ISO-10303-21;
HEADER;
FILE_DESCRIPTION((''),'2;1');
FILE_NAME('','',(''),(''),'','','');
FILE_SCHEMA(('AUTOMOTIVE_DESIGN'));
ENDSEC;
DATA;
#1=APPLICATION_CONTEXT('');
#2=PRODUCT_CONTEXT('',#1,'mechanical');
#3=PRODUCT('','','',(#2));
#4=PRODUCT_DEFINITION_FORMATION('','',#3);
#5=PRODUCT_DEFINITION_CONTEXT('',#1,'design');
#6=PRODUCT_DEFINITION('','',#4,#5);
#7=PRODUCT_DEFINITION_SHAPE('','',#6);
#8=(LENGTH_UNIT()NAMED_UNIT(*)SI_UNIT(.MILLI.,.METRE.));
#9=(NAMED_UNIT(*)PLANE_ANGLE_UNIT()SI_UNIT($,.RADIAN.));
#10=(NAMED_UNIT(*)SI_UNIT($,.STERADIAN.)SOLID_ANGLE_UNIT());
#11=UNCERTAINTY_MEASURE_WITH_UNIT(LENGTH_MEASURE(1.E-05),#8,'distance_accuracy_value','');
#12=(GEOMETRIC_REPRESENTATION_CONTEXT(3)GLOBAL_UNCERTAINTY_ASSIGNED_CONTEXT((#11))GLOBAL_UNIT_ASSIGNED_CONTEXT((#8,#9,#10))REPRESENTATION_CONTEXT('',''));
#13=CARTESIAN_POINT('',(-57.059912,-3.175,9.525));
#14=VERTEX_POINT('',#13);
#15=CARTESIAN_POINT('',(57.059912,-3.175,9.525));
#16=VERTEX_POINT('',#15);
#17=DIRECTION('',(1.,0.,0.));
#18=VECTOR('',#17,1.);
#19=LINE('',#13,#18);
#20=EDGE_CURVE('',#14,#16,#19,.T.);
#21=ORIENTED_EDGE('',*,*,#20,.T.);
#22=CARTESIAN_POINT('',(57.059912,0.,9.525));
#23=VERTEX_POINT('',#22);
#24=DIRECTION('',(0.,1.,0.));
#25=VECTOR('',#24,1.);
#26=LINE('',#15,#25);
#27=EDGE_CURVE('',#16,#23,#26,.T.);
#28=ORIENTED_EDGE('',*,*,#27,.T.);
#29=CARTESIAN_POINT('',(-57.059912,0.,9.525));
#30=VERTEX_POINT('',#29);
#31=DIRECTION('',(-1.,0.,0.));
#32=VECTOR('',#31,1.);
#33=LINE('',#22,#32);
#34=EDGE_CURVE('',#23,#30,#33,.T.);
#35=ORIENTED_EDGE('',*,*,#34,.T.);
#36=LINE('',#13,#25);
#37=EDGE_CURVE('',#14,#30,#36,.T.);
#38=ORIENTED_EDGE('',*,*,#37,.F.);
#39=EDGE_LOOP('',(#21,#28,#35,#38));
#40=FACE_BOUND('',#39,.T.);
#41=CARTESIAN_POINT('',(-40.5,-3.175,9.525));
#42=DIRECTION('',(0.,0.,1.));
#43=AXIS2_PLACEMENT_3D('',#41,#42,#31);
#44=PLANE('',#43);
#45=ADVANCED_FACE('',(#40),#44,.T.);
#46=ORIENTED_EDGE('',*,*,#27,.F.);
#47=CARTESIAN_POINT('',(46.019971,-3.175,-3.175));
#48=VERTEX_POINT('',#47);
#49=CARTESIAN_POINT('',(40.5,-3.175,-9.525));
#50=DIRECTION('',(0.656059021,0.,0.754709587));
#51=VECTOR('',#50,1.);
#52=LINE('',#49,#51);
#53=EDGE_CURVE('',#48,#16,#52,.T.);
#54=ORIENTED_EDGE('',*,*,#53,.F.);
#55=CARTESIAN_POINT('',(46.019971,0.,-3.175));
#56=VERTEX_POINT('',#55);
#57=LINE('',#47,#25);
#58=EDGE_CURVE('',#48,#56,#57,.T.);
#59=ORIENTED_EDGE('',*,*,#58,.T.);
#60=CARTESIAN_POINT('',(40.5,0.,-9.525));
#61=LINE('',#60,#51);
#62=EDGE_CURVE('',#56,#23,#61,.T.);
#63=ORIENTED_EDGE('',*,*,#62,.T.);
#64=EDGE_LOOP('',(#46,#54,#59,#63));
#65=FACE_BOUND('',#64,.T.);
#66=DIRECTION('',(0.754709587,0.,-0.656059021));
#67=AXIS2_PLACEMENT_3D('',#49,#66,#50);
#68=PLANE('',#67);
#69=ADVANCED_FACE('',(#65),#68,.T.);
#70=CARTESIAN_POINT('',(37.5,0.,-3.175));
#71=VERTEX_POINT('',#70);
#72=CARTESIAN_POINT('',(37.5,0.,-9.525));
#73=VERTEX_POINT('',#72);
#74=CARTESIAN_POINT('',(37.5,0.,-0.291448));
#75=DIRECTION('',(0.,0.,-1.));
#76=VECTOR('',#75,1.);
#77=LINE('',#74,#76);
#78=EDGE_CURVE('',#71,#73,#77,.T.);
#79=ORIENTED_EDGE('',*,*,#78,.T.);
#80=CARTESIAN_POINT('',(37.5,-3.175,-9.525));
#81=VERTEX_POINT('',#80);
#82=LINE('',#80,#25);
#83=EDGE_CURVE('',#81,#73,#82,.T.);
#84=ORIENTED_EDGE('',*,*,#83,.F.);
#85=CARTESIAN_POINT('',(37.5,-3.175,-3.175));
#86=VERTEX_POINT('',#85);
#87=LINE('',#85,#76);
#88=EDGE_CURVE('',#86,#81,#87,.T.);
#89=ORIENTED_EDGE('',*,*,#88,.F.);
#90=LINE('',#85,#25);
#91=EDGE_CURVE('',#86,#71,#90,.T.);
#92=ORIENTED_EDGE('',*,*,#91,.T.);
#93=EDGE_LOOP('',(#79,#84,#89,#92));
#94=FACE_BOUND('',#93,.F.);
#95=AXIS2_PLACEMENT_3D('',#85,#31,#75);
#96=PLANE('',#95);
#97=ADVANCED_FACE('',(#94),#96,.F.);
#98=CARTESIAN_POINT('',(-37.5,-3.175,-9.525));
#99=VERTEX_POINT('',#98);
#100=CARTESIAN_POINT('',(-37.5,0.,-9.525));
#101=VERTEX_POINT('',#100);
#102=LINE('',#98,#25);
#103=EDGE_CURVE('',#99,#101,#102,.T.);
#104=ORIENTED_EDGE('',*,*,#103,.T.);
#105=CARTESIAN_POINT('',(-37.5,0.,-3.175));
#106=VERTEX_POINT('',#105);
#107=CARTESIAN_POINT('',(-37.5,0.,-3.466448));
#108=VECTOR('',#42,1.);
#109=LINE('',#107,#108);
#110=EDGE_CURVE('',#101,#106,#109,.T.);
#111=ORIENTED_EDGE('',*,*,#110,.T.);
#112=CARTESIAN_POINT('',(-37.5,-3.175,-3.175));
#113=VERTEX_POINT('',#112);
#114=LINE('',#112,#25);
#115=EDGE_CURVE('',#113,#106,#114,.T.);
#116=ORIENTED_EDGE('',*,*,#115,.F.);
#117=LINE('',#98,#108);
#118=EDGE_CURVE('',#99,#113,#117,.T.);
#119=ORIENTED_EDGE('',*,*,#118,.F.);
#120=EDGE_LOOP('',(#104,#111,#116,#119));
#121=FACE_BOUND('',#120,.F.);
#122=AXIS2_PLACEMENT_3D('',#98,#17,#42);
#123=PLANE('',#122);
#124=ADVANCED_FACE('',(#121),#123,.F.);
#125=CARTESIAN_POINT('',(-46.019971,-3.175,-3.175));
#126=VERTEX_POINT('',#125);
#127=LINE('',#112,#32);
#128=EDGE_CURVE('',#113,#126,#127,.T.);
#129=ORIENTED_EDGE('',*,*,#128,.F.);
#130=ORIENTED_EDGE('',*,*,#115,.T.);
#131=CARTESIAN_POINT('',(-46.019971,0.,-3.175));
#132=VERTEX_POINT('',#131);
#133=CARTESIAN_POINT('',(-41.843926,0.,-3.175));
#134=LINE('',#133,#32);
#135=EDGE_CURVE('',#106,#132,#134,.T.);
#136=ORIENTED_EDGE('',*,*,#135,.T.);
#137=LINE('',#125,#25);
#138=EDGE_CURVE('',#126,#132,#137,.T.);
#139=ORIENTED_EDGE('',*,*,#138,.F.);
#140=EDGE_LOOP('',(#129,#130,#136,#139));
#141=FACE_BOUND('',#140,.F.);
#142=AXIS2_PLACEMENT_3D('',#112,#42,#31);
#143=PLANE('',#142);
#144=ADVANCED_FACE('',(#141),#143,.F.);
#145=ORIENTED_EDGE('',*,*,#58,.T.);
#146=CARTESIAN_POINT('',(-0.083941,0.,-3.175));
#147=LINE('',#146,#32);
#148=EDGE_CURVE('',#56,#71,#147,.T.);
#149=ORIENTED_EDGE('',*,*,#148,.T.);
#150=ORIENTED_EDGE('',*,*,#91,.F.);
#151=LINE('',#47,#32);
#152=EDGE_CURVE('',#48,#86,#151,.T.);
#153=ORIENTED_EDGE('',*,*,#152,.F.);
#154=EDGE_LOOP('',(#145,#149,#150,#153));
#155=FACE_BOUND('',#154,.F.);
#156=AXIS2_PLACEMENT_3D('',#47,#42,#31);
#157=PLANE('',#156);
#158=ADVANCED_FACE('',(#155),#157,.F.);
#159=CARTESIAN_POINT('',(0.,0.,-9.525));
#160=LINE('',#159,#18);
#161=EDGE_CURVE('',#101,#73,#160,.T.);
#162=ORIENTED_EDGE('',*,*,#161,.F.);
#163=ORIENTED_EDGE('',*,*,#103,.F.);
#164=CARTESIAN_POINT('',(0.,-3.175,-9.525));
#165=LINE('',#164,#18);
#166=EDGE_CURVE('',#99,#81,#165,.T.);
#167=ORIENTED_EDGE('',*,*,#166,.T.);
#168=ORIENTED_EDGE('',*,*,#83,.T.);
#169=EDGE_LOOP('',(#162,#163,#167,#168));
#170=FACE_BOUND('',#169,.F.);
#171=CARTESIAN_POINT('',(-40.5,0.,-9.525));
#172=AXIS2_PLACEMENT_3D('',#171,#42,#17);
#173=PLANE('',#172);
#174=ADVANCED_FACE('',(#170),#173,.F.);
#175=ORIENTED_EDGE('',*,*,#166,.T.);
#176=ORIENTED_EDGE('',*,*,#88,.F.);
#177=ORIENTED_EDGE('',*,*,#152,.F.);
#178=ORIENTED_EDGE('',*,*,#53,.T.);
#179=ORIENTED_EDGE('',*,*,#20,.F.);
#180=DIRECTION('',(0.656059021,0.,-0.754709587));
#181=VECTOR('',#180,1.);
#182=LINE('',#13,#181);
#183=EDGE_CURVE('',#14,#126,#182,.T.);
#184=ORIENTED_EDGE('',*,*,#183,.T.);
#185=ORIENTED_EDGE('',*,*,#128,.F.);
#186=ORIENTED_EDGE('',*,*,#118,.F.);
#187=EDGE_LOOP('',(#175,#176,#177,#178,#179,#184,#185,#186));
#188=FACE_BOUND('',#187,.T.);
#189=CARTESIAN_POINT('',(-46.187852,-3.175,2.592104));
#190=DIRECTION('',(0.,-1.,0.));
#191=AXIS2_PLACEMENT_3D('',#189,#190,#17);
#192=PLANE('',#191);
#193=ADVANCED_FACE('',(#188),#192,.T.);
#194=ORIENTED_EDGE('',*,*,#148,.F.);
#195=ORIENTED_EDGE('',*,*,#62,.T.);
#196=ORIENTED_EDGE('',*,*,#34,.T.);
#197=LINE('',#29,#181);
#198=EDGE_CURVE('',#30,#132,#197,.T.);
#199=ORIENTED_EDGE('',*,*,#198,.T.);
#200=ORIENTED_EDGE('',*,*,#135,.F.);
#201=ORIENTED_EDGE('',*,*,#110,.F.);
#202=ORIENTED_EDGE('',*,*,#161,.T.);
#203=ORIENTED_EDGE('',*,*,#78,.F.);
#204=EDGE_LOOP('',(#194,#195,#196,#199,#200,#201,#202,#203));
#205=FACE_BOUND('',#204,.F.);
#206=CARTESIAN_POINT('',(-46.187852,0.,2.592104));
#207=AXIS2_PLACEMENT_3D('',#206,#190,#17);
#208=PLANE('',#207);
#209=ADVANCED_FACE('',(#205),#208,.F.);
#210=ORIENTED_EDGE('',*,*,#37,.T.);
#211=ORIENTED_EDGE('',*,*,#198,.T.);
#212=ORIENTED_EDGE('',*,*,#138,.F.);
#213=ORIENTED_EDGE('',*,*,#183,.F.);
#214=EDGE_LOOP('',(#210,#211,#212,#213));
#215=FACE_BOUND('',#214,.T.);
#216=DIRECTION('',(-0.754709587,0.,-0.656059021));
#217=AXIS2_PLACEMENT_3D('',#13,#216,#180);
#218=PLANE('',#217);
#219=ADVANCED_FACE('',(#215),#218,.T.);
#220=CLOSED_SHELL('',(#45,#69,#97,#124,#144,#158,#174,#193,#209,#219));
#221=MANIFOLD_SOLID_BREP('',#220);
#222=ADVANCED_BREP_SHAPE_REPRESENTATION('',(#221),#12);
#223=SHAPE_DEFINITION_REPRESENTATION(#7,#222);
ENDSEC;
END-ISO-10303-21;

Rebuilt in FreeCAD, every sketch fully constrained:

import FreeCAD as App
import Part
import Sketcher

V = App.Vector
Q = App.Units.Quantity

doc = App.newDocument("Part")
body = doc.addObject("PartDesign::Body", "Body")

# Sketch on XZ plane
sketch1 = body.newObject("Sketcher::SketchObject", "Sketch")
sketch1.AttachmentSupport = (doc.getObject("XZ_Plane"), [""])
sketch1.MapMode = "FlatFace"
sketch1.addGeometry([
    Part.LineSegment(V(-40, 10, 0), V(-40, -10, 0)),
    Part.LineSegment(V(-40, -10, 0), V(40, -10, 0)),
    Part.LineSegment(V(40, -10, 0), V(40, 10, 0)),
    Part.LineSegment(V(40, 10, 0), V(-40, 10, 0)),
], False)
sketch1.addConstraint([
    Sketcher.Constraint("Coincident", 0, 2, 1, 1),
    Sketcher.Constraint("Coincident", 1, 2, 2, 1),
    Sketcher.Constraint("Coincident", 2, 2, 3, 1),
    Sketcher.Constraint("Coincident", 3, 2, 0, 1),
    Sketcher.Constraint("Vertical", 0),
    Sketcher.Constraint("Horizontal", 1),
    Sketcher.Constraint("Vertical", 2),
    Sketcher.Constraint("Horizontal", 3),
    Sketcher.Constraint("Symmetric", 0, 2, 2, 2, -1, 1),
    Sketcher.Constraint("DistanceY", 0, 2, 0, 1, Q("0.75 in")),
    Sketcher.Constraint("DistanceX", 1, 1, 1, 2, 81.0),
])
pad1 = body.newObject("PartDesign::Pad", "Pad")
pad1.Profile = sketch1
pad1.Length = Q("0.125 in")

# Sketch on XZ plane
sketch2 = body.newObject("Sketcher::SketchObject", "Sketch001")
sketch2.AttachmentSupport = (doc.getObject("XZ_Plane"), [""])
sketch2.MapMode = "FlatFace"
sketch2.AttachmentOffset = App.Placement(V(0, 0, 0.125 * 25.4), App.Rotation())
sketch2.addGeometry([
    Part.LineSegment(V(-40, -10, 0), V(-40, 10, 0)),  # 0
    Part.LineSegment(V(-40, 10, 0), V(-57, 10, 0)),  # 1
    Part.LineSegment(V(-57, 10, 0), V(-40, -10, 0)),  # 2
    Part.LineSegment(V(57, 10, 0), V(40, 10, 0)),  # 3
    Part.LineSegment(V(40, 10, 0), V(40, -10, 0)),  # 4
    Part.LineSegment(V(40, -10, 0), V(57, 10, 0)),  # 5
], False)
sketch2.addConstraint([
    Sketcher.Constraint("Coincident", 0, 2, 1, 1),
    Sketcher.Constraint("Coincident", 1, 2, 2, 1),
    Sketcher.Constraint("Coincident", 2, 2, 0, 1),
    Sketcher.Constraint("Coincident", 3, 2, 4, 1),
    Sketcher.Constraint("Coincident", 4, 2, 5, 1),
    Sketcher.Constraint("Coincident", 5, 2, 3, 1),
    Sketcher.Constraint("Vertical", 0),
    Sketcher.Constraint("Horizontal", 1),
    Sketcher.Constraint("Horizontal", 3),
    Sketcher.Constraint("Vertical", 4),
    Sketcher.Constraint("Symmetric", 2, 2, 3, 2, -1, 1),
    Sketcher.Constraint("Symmetric", 1, 2, 5, 2, -2),
    Sketcher.Constraint("Horizontal", 2, 2, 4, 2),
    Sketcher.Constraint("Angle", 2, Q("-49.000001 deg")),
    Sketcher.Constraint("DistanceY", 0, 1, 0, 2, Q("0.75 in")),
    Sketcher.Constraint("DistanceX", 0, 2, -1, 1, 40.5),
])
pad2 = body.newObject("PartDesign::Pad", "Pad001")
pad2.Profile = sketch2
pad2.Length = Q("0.125 in")
pad2.Reversed = True

# Sketch on XZ plane
sketch3 = body.newObject("Sketcher::SketchObject", "Sketch002")
sketch3.AttachmentSupport = (doc.getObject("XZ_Plane"), [""])
sketch3.MapMode = "FlatFace"
sketch3.AttachmentOffset = App.Placement(V(0, 0, 0.125 * 25.4), App.Rotation())
sketch3.addGeometry([
    Part.LineSegment(V(-40.5, -9.5, 0), V(-37.5, -9.5, 0)),  # 0
    Part.LineSegment(V(-37.5, -9.5, 0), V(-37.5, -3.2, 0)),  # 1
    Part.LineSegment(V(-37.5, -3.2, 0), V(-46, -3.2, 0)),  # 2
    Part.LineSegment(V(-46, -3.2, 0), V(-40.5, -9.5, 0)),  # 3
    Part.LineSegment(V(46, -3.2, 0), V(37.5, -3.2, 0)),  # 4
    Part.LineSegment(V(37.5, -3.2, 0), V(37.5, -9.5, 0)),  # 5
    Part.LineSegment(V(37.5, -9.5, 0), V(40.5, -9.5, 0)),  # 6
    Part.LineSegment(V(40.5, -9.5, 0), V(46, -3.2, 0)),  # 7
], False)
sketch3.addConstraint([
    Sketcher.Constraint("Coincident", 0, 2, 1, 1),
    Sketcher.Constraint("Coincident", 1, 2, 2, 1),
    Sketcher.Constraint("Coincident", 2, 2, 3, 1),
    Sketcher.Constraint("Coincident", 3, 2, 0, 1),
    Sketcher.Constraint("Coincident", 4, 2, 5, 1),
    Sketcher.Constraint("Coincident", 5, 2, 6, 1),
    Sketcher.Constraint("Coincident", 6, 2, 7, 1),
    Sketcher.Constraint("Coincident", 7, 2, 4, 1),
    Sketcher.Constraint("Horizontal", 0),
    Sketcher.Constraint("Vertical", 1),
    Sketcher.Constraint("Horizontal", 2),
    Sketcher.Constraint("Horizontal", 4),
    Sketcher.Constraint("Vertical", 5),
    Sketcher.Constraint("Horizontal", 6),
    Sketcher.Constraint("Symmetric", 1, 2, 4, 2, -2),
    Sketcher.Constraint("Symmetric", 3, 2, 6, 2, -2),
    Sketcher.Constraint("Equal", 2, 4),
    Sketcher.Constraint("Angle", 3, Q("-48.999999 deg")),
    Sketcher.Constraint("DistanceY", 1, 1, 1, 2, Q("0.25 in")),
    Sketcher.Constraint("DistanceY", 0, 2, -1, 1, Q("0.375 in")),
    Sketcher.Constraint("DistanceX", 0, 1, 0, 2, 3.0),
    Sketcher.Constraint("DistanceX", 0, 2, -1, 1, 37.5),
])
pocket1 = body.newObject("PartDesign::Pocket", "Pocket")
pocket1.Profile = sketch3
pocket1.Length = Q("1 in")

doc.recompute()
